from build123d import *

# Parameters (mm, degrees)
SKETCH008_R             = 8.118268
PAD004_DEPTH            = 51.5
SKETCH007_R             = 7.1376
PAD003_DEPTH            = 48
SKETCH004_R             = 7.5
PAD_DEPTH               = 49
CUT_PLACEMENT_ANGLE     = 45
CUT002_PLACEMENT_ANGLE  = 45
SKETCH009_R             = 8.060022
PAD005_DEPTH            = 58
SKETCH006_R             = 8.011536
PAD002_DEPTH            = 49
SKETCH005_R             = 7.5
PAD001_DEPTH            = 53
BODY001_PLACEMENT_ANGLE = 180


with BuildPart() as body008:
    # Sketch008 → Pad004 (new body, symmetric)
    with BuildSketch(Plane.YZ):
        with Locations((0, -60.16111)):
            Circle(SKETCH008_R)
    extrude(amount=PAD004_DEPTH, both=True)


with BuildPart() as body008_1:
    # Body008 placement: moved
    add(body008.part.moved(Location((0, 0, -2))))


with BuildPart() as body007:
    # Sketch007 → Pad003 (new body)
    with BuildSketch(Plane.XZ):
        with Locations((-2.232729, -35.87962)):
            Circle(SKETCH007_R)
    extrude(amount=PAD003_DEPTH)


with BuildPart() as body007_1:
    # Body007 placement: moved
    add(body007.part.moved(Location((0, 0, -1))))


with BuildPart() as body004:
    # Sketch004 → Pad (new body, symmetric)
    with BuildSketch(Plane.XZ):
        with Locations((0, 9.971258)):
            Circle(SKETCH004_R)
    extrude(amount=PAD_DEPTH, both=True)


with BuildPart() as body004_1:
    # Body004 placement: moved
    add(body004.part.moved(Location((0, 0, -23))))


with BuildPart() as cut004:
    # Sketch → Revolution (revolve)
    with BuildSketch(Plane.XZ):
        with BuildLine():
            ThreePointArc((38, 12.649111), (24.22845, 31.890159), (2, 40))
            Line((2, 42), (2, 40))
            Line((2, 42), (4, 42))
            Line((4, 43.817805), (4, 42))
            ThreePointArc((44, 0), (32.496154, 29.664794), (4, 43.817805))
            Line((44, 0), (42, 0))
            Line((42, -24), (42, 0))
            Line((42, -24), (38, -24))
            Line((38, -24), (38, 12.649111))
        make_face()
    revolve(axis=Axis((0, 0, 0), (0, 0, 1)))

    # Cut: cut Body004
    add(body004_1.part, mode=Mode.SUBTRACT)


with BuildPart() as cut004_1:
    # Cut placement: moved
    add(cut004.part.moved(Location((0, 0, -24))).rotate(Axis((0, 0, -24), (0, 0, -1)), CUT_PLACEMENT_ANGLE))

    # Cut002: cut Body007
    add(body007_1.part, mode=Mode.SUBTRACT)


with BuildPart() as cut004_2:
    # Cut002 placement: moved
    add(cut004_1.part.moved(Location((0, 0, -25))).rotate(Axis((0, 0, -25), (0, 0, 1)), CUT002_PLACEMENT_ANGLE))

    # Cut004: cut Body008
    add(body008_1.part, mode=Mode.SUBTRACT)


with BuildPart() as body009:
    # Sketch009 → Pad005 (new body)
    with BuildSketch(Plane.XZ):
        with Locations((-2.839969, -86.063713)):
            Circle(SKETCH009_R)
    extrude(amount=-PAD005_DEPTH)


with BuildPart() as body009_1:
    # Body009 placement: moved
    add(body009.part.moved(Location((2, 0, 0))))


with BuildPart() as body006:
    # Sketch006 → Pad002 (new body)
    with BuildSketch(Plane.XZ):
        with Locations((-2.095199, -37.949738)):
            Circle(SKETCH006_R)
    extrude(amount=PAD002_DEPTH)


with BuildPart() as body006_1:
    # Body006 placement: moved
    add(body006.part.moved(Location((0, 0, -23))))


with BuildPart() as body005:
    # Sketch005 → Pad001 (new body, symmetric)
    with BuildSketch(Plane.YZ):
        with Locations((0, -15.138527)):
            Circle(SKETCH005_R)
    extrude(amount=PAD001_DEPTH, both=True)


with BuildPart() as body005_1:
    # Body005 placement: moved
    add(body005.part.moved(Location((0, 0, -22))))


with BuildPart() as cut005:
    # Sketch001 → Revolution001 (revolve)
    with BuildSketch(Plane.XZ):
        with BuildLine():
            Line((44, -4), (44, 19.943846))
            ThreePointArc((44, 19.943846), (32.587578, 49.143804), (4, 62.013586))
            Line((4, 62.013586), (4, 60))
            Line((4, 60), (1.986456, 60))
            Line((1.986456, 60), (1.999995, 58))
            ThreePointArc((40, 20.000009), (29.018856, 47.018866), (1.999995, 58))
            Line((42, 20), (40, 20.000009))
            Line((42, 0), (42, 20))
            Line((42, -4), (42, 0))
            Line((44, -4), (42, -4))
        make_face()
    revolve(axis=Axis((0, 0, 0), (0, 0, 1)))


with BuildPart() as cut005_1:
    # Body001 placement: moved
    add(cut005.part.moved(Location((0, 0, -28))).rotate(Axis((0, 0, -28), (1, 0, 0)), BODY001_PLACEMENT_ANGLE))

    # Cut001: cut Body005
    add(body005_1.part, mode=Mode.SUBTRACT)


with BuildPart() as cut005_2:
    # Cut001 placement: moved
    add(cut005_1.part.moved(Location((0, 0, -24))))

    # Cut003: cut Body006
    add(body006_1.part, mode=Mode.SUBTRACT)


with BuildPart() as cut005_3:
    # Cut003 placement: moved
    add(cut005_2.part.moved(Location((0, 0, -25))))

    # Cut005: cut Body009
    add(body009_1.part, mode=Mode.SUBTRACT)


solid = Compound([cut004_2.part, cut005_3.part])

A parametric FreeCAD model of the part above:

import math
import FreeCAD as App
import Part
import Sketcher

V = App.Vector

doc = App.newDocument("Part")
params = doc.addObject("Spreadsheet::Sheet", "Params")
for row, (alias, value) in enumerate([
    ("pad1_length", "103 mm"),
    ("pad2_length", "48 mm"),
    ("sketch3_diameter", "15 mm"),
    ("pad3_length", "98 mm"),
    ("sketch4_radius", "44 mm"),
    ("sketch4_width", "4 mm"),
    ("sketch4_width2", "2 mm"),
    ("sketch4_height", "24 mm"),
    ("revolution_angle", "360 deg"),
    ("pad4_length", "58 mm"),
    ("pad5_length", "49 mm"),
    ("sketch7_diameter", "15 mm"),
    ("pad6_length", "106 mm"),
    ("sketch8_width", "2 mm"),
    ("sketch8_height", "24 mm"),
    ("sketch8_length", "2 mm"),
    ("revolution2_angle", "360 deg"),
], start=1):
    params.set(f"A{row}", alias)
    params.set(f"B{row}", "=" + value)
    params.setAlias(f"B{row}", alias)

body = doc.addObject("PartDesign::Body", "Body")

sketch1 = body.newObject("Sketcher::SketchObject", "Sketch")
sketch1.AttachmentSupport = (doc.getObject("YZ_Plane"), [""])
sketch1.MapMode = "FlatFace"
sketch1.addGeometry(Part.Circle(V(0, -60, 0), V(0, 0, 1), 8), False)
sketch1.addConstraint(Sketcher.Constraint("PointOnObject", 0, 3, -2))
sketch1.addConstraint(Sketcher.Constraint("Diameter", 0, 16.236536))
sketch1.addConstraint(Sketcher.Constraint("DistanceY", 0, 3, -1, 1, 60.16111))
pad1 = body.newObject("PartDesign::Pad", "Pad")
pad1.Profile = sketch1
pad1.setExpression("Length", "Params.pad1_length")
pad1.Midplane = True
body2 = doc.addObject("PartDesign::Body", "Body001")
doc.recompute()

body.Placement = App.Placement(V(0, 0, -2), App.Rotation(V(0, 0, 1), 0))
boolean = body2.newObject("PartDesign::Boolean", "Boolean")
boolean.Type = "Fuse"
boolean.addObjects([body])
body3 = doc.addObject("PartDesign::Body", "Body002")

sketch2 = body3.newObject("Sketcher::SketchObject", "Sketch001")
sketch2.AttachmentSupport = (doc.getObject("XZ_Plane002"), [""])
sketch2.MapMode = "FlatFace"
sketch2.addGeometry(Part.Circle(V(-2, -36, 0), V(0, 0, 1), 7), False)
sketch2.addConstraint(Sketcher.Constraint("Diameter", 0, 14.2752))
sketch2.addConstraint(Sketcher.Constraint("DistanceX", 0, 3, -1, 1, 2.232729))
sketch2.addConstraint(Sketcher.Constraint("DistanceY", 0, 3, -1, 1, 35.87962))
pad2 = body3.newObject("PartDesign::Pad", "Pad001")
pad2.Profile = sketch2
pad2.setExpression("Length", "Params.pad2_length")
body4 = doc.addObject("PartDesign::Body", "Body003")
doc.recompute()

body3.Placement = App.Placement(V(0, 0, -1), App.Rotation(V(0, 0, 1), 0))
boolean2 = body4.newObject("PartDesign::Boolean", "Boolean001")
boolean2.Type = "Fuse"
boolean2.addObjects([body3])
body5 = doc.addObject("PartDesign::Body", "Body004")

sketch3 = body5.newObject("Sketcher::SketchObject", "Sketch002")
sketch3.AttachmentSupport = (doc.getObject("XZ_Plane004"), [""])
sketch3.MapMode = "FlatFace"
sketch3.addGeometry(Part.Circle(V(0, 10, 0), V(0, 0, 1), 8), False)
sketch3.addConstraint(Sketcher.Constraint("PointOnObject", 0, 3, -2))
sketch3.addConstraint(Sketcher.Constraint("Diameter", 0, 15.0))
sketch3.addConstraint(Sketcher.Constraint("DistanceY", -1, 1, 0, 3, 9.971258))
sketch3.setExpression("Constraints[1]", "Params.sketch3_diameter")
pad3 = body5.newObject("PartDesign::Pad", "Pad002")
pad3.Profile = sketch3
pad3.setExpression("Length", "Params.pad3_length")
pad3.Midplane = True
body6 = doc.addObject("PartDesign::Body", "Body005")
doc.recompute()

body5.Placement = App.Placement(V(0, 0, -23), App.Rotation(V(0, 0, 1), 0))
boolean3 = body6.newObject("PartDesign::Boolean", "Boolean002")
boolean3.Type = "Fuse"
boolean3.addObjects([body5])
body7 = doc.addObject("PartDesign::Body", "Body006")

sketch4 = body7.newObject("Sketcher::SketchObject", "Sketch003")
sketch4.AttachmentSupport = (doc.getObject("XZ_Plane006"), [""])
sketch4.MapMode = "FlatFace"
sketch4.addGeometry(Part.ArcOfCircle(Part.Circle(V(0, 0, 0), V(0, 0, 1), 40), math.radians(18), math.radians(87)), False)
sketch4.addGeometry(Part.LineSegment(V(38, 12.6, 0), V(38, -24, 0)), False)
sketch4.addGeometry(Part.LineSegment(V(38, -24, 0), V(42, -24, 0)), False)
sketch4.addGeometry(Part.LineSegment(V(42, -24, 0), V(42, 0, 0)), False)
sketch4.addGeometry(Part.LineSegment(V(42, 0, 0), V(44, 0, 0)), False)
sketch4.addGeometry(Part.ArcOfCircle(Part.Circle(V(0, 0, 0), V(0, 0, 1), 44), math.radians(0), math.radians(85)), False)
sketch4.addGeometry(Part.LineSegment(V(4, 43.8, 0), V(4, 42, 0)), False)
sketch4.addGeometry(Part.LineSegment(V(4, 42, 0), V(2, 42, 0)), False)
sketch4.addGeometry(Part.LineSegment(V(2, 42, 0), V(2, 40, 0)), False)
sketch4.addConstraint(Sketcher.Constraint("Coincident", 0, 1, 1, 1))
sketch4.addConstraint(Sketcher.Constraint("Coincident", 1, 2, 2, 1))
sketch4.addConstraint(Sketcher.Constraint("Coincident", 2, 2, 3, 1))
sketch4.addConstraint(Sketcher.Constraint("Coincident", 3, 2, 4, 1))
sketch4.addConstraint(Sketcher.Constraint("Coincident", 4, 2, 5, 1))
sketch4.addConstraint(Sketcher.Constraint("Coincident", 5, 2, 6, 1))
sketch4.addConstraint(Sketcher.Constraint("Coincident", 6, 2, 7, 1))
sketch4.addConstraint(Sketcher.Constraint("Coincident", 7, 2, 8, 1))
sketch4.addConstraint(Sketcher.Constraint("Coincident", 8, 2, 0, 2))
sketch4.addConstraint(Sketcher.Constraint("Vertical", 1))
sketch4.addConstraint(Sketcher.Constraint("Horizontal", 2))
sketch4.addConstraint(Sketcher.Constraint("Vertical", 3))
sketch4.addConstraint(Sketcher.Constraint("Horizontal", 4))
sketch4.addConstraint(Sketcher.Constraint("Vertical", 6))
sketch4.addConstraint(Sketcher.Constraint("Horizontal", 7))
sketch4.addConstraint(Sketcher.Constraint("Vertical", 8))
sketch4.addConstraint(Sketcher.Constraint("Coincident", 0, 3, -1, 1))
sketch4.addConstraint(Sketcher.Constraint("Coincident", 5, 3, -1, 1))
sketch4.addConstraint(Sketcher.Constraint("PointOnObject", 3, 2, -1))
sketch4.addConstraint(Sketcher.Constraint("Equal", 4, 7))
sketch4.addConstraint(Sketcher.Constraint("Equal", 7, 8))
sketch4.addConstraint(Sketcher.Constraint("Radius", 5, 44.0))
sketch4.addConstraint(Sketcher.Constraint("DistanceX", 2, 1, 2, 2, 4.0))
sketch4.addConstraint(Sketcher.Constraint("DistanceX", 4, 1, 4, 2, 2.0))
sketch4.addConstraint(Sketcher.Constraint("DistanceY", 3, 1, 3, 2, 24.0))
sketch4.addConstraint(Sketcher.Constraint("DistanceX", -1, 1, 5, 2, 4.0))
sketch4.addConstraint(Sketcher.Constraint("DistanceY", -1, 1, 6, 2, 42.0))
sketch4.setExpression("Constraints[21]", "Params.sketch4_radius")
sketch4.setExpression("Constraints[22]", "Params.sketch4_width")
sketch4.setExpression("Constraints[23]", "Params.sketch4_width2")
sketch4.setExpression("Constraints[24]", "Params.sketch4_height")
revolution = body7.newObject("PartDesign::Revolution", "Revolution")
revolution.Profile = sketch4
revolution.ReferenceAxis = (sketch4, ["V_Axis"])
revolution.setExpression("Angle", "Params.revolution_angle")
doc.recompute()

boolean4 = body7.newObject("PartDesign::Boolean", "Boolean003")
boolean4.Type = "Cut"
boolean4.addObjects([body6])
body8 = doc.addObject("PartDesign::Body", "Body007")
doc.recompute()

body7.Placement = App.Placement(V(0, 0, -24), App.Rotation(V(0, 0, -1), 45))
boolean5 = body8.newObject("PartDesign::Boolean", "Boolean004")
boolean5.Type = "Fuse"
boolean5.addObjects([body7])
doc.recompute()

boolean6 = body8.newObject("PartDesign::Boolean", "Boolean005")
boolean6.Type = "Cut"
boolean6.addObjects([body4])
body9 = doc.addObject("PartDesign::Body", "Body008")
doc.recompute()

body8.Placement = App.Placement(V(0, 0, -25), App.Rotation(V(0, 0, 1), 45))
boolean7 = body9.newObject("PartDesign::Boolean", "Boolean006")
boolean7.Type = "Fuse"
boolean7.addObjects([body8])
doc.recompute()

boolean8 = body9.newObject("PartDesign::Boolean", "Boolean007")
boolean8.Type = "Cut"
boolean8.addObjects([body2])
body10 = doc.addObject("PartDesign::Body", "Body009")

sketch5 = body10.newObject("Sketcher::SketchObject", "Sketch004")
sketch5.AttachmentSupport = (doc.getObject("XZ_Plane009"), [""])
sketch5.MapMode = "FlatFace"
sketch5.addGeometry(Part.Circle(V(-3, -86, 0), V(0, 0, 1), 8), False)
sketch5.addConstraint(Sketcher.Constraint("Diameter", 0, 16.120044))
sketch5.addConstraint(Sketcher.Constraint("DistanceX", 0, 3, -1, 1, 2.839969))
sketch5.addConstraint(Sketcher.Constraint("DistanceY", 0, 3, -1, 1, 86.063713))
pad4 = body10.newObject("PartDesign::Pad", "Pad003")
pad4.Profile = sketch5
pad4.setExpression("Length", "Params.pad4_length")
pad4.Reversed = True
body11 = doc.addObject("PartDesign::Body", "Body010")
doc.recompute()

body10.Placement = App.Placement(V(2, 0, 0), App.Rotation(V(0, 0, 1), 0))
boolean9 = body11.newObject("PartDesign::Boolean", "Boolean008")
boolean9.Type = "Fuse"
boolean9.addObjects([body10])
body12 = doc.addObject("PartDesign::Body", "Body011")

sketch6 = body12.newObject("Sketcher::SketchObject", "Sketch005")
sketch6.AttachmentSupport = (doc.getObject("XZ_Plane011"), [""])
sketch6.MapMode = "FlatFace"
sketch6.addGeometry(Part.Circle(V(-2, -38, 0), V(0, 0, 1), 8), False)
sketch6.addConstraint(Sketcher.Constraint("Diameter", 0, 16.023072))
sketch6.addConstraint(Sketcher.Constraint("DistanceX", 0, 3, -1, 1, 2.095199))
sketch6.addConstraint(Sketcher.Constraint("DistanceY", 0, 3, -1, 1, 37.949738))
pad5 = body12.newObject("PartDesign::Pad", "Pad004")
pad5.Profile = sketch6
pad5.setExpression("Length", "Params.pad5_length")
body13 = doc.addObject("PartDesign::Body", "Body012")
doc.recompute()

body12.Placement = App.Placement(V(0, 0, -23), App.Rotation(V(0, 0, 1), 0))
boolean10 = body13.newObject("PartDesign::Boolean", "Boolean009")
boolean10.Type = "Fuse"
boolean10.addObjects([body12])
body14 = doc.addObject("PartDesign::Body", "Body013")

sketch7 = body14.newObject("Sketcher::SketchObject", "Sketch006")
sketch7.AttachmentSupport = (doc.getObject("YZ_Plane013"), [""])
sketch7.MapMode = "FlatFace"
sketch7.addGeometry(Part.Circle(V(0, -15, 0), V(0, 0, 1), 8), False)
sketch7.addConstraint(Sketcher.Constraint("PointOnObject", 0, 3, -2))
sketch7.addConstraint(Sketcher.Constraint("Diameter", 0, 15.0))
sketch7.addConstraint(Sketcher.Constraint("DistanceY", 0, 3, -1, 1, 15.138527))
sketch7.setExpression("Constraints[1]", "Params.sketch7_diameter")
pad6 = body14.newObject("PartDesign::Pad", "Pad005")
pad6.Profile = sketch7
pad6.setExpression("Length", "Params.pad6_length")
pad6.Midplane = True
body15 = doc.addObject("PartDesign::Body", "Body014")
doc.recompute()

body14.Placement = App.Placement(V(0, 0, -22), App.Rotation(V(0, 0, 1), 0))
boolean11 = body15.newObject("PartDesign::Boolean", "Boolean010")
boolean11.Type = "Fuse"
boolean11.addObjects([body14])
body16 = doc.addObject("PartDesign::Body", "Body015")

sketch8 = body16.newObject("Sketcher::SketchObject", "Sketch007")
sketch8.AttachmentSupport = (doc.getObject("XZ_Plane015"), [""])
sketch8.MapMode = "FlatFace"
sketch8.addGeometry(Part.LineSegment(V(44, -4, 0), V(44, 19.9, 0)), False)
sketch8.addGeometry(Part.ArcOfCircle(Part.Circle(V(2.5, 20.6, 0), V(0, 0, 1), 41.5), math.radians(-1), math.radians(88)), False)
sketch8.addGeometry(Part.LineSegment(V(4, 62, 0), V(4, 60, 0)), False)
sketch8.addGeometry(Part.LineSegment(V(4, 60, 0), V(2, 60, 0)), False)
sketch8.addGeometry(Part.LineSegment(V(2, 60, 0), V(2, 58, 0)), False)
sketch8.addGeometry(Part.ArcOfCircle(Part.Circle(V(2.5, 20.5, 0), V(0, 0, 1), 37.5), math.radians(-1), math.radians(91)), False)
sketch8.addGeometry(Part.LineSegment(V(40, 20, 0), V(42, 20, 0)), False)
sketch8.addGeometry(Part.LineSegment(V(42, 20, 0), V(42, -4, 0)), False)
sketch8.addGeometry(Part.LineSegment(V(42, -4, 0), V(44, -4, 0)), False)
sketch8.addConstraint(Sketcher.Constraint("Coincident", 0, 2, 1, 1))
sketch8.addConstraint(Sketcher.Constraint("Coincident", 1, 2, 2, 1))
sketch8.addConstraint(Sketcher.Constraint("Coincident", 2, 2, 3, 1))
sketch8.addConstraint(Sketcher.Constraint("Coincident", 3, 2, 4, 1))
sketch8.addConstraint(Sketcher.Constraint("Coincident", 4, 2, 5, 2))
sketch8.addConstraint(Sketcher.Constraint("Coincident", 5, 1, 6, 1))
sketch8.addConstraint(Sketcher.Constraint("Coincident", 6, 2, 7, 1))
sketch8.addConstraint(Sketcher.Constraint("Coincident", 7, 2, 8, 1))
sketch8.addConstraint(Sketcher.Constraint("Coincident", 8, 2, 0, 1))
sketch8.addConstraint(Sketcher.Constraint("Vertical", 0))
sketch8.addConstraint(Sketcher.Constraint("Vertical", 2))
sketch8.addConstraint(Sketcher.Constraint("Horizontal", 3))
sketch8.addConstraint(Sketcher.Constraint("Vertical", 7))
sketch8.addConstraint(Sketcher.Constraint("Horizontal", 8))
sketch8.addConstraint(Sketcher.Constraint("DistanceX", 8, 1, 8, 2, 2.0))
sketch8.addConstraint(Sketcher.Constraint("DistanceY", 7, 2, 7, 1, 24.0))
sketch8.addConstraint(Sketcher.Constraint("Distance", 6, 2.0))
sketch8.addConstraint(Sketcher.Constraint("DistanceX", -1, 1, 0, 2, 44.0))
sketch8.addConstraint(Sketcher.Constraint("DistanceX", -1, 1, 1, 2, 4.0))
sketch8.addConstraint(Sketcher.Constraint("DistanceY", -1, 1, 2, 2, 60.0))
sketch8.addConstraint(Sketcher.Constraint("DistanceY", -1, 1, 4, 2, 58.0))
sketch8.addConstraint(Sketcher.Constraint("DistanceY", -1, 1, 6, 2, 20.0))
sketch8.addConstraint(Sketcher.Constraint("DistanceX", -1, 1, 5, 3, 2.499999))
sketch8.addConstraint(Sketcher.Constraint("DistanceY", -1, 1, 5, 3, 20.499999))
sketch8.addConstraint(Sketcher.Constraint("Radius", 1, 41.472853))
sketch8.addConstraint(Sketcher.Constraint("Radius", 5, 37.503334))
sketch8.addConstraint(Sketcher.Constraint("DistanceX", 3, 2, 3, 1, 2.013544))
sketch8.addConstraint(Sketcher.Constraint("DistanceY", 0, 1, 0, 2, 23.943846))
sketch8.addConstraint(Sketcher.Constraint("DistanceY", 2, 2, 2, 1, 2.013586))
sketch8.setExpression("Constraints[14]", "Params.sketch8_width")
sketch8.setExpression("Constraints[15]", "Params.sketch8_height")
sketch8.setExpression("Constraints[16]", "Params.sketch8_length")
revolution2 = body16.newObject("PartDesign::Revolution", "Revolution001")
revolution2.Profile = sketch8
revolution2.ReferenceAxis = (sketch8, ["V_Axis"])
revolution2.setExpression("Angle", "Params.revolution2_angle")
body17 = doc.addObject("PartDesign::Body", "Body016")
doc.recompute()

body16.Placement = App.Placement(V(0, 0, -28), App.Rotation(V(1, 0, 0), 180))
boolean12 = body17.newObject("PartDesign::Boolean", "Boolean011")
boolean12.Type = "Fuse"
boolean12.addObjects([body16])
doc.recompute()

boolean13 = body17.newObject("PartDesign::Boolean", "Boolean012")
boolean13.Type = "Cut"
boolean13.addObjects([body15])
body18 = doc.addObject("PartDesign::Body", "Body017")
doc.recompute()

body17.Placement = App.Placement(V(0, 0, -24), App.Rotation(V(0, 0, 1), 0))
boolean14 = body18.newObject("PartDesign::Boolean", "Boolean013")
boolean14.Type = "Fuse"
boolean14.addObjects([body17])
doc.recompute()

boolean15 = body18.newObject("PartDesign::Boolean", "Boolean014")
boolean15.Type = "Cut"
boolean15.addObjects([body13])
body19 = doc.addObject("PartDesign::Body", "Body018")
doc.recompute()

body18.Placement = App.Placement(V(0, 0, -25), App.Rotation(V(0, 0, 1), 0))
boolean16 = body19.newObject("PartDesign::Boolean", "Boolean015")
boolean16.Type = "Fuse"
boolean16.addObjects([body18])
doc.recompute()

boolean17 = body19.newObject("PartDesign::Boolean", "Boolean016")
boolean17.Type = "Cut"
boolean17.addObjects([body11])

doc.recompute()
